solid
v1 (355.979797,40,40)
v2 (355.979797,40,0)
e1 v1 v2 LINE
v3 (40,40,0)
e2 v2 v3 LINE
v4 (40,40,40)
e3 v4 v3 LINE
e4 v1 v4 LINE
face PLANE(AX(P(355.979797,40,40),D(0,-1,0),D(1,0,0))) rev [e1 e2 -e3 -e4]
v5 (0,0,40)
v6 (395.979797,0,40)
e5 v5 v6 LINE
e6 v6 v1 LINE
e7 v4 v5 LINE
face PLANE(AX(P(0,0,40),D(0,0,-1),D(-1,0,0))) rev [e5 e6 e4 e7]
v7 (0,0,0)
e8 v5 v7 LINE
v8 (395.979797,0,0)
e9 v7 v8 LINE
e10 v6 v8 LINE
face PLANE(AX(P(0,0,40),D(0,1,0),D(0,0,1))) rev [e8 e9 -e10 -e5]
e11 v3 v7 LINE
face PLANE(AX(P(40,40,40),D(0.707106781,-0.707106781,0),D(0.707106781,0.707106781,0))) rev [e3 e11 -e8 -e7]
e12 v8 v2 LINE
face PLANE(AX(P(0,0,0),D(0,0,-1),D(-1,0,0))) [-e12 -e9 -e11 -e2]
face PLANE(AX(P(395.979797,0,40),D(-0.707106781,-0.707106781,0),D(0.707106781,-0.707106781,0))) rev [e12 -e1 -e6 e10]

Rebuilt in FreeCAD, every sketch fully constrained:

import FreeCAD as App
import Part
import Sketcher
from FreeCAD import Vector
Q = App.Units.Quantity


def add_polygon(sketch, points):
    """Adds a closed chain of lines whose ends are joined by coincident constraints."""
    first, n = sketch.GeometryCount, len(points)
    for a, b in zip(points, points[1:] + points[:1]):
        sketch.addGeometry(Part.LineSegment(App.Vector(*a, 0), App.Vector(*b, 0)), False)
    for i in range(n):
        sketch.addConstraint(Sketcher.Constraint("Coincident", first + i, 2, first + (i + 1) % n, 1))

doc = App.newDocument("Part")
params = doc.addObject("Spreadsheet::Sheet", "Params")
for row, (alias, value) in enumerate([
    ("pad1_length", "40 mm"),
], start=1):
    params.set(f"A{row}", alias)
    params.set(f"B{row}", "=" + value)
    params.setAlias(f"B{row}", alias)

body = doc.addObject("PartDesign::Body", "Body")

# Sketch on XY plane
sketch1 = body.newObject("Sketcher::SketchObject", "Sketch")
sketch1.AttachmentSupport = (doc.getObject("XY_Plane"), [""])
sketch1.MapMode = "FlatFace"
add_polygon(sketch1, [(0, 0), (396, 0), (356, 40), (40, 40)])  # lines 0-3
sketch1.addConstraint([
    Sketcher.Constraint("Horizontal", 0),
    Sketcher.Constraint("Horizontal", 2),
    Sketcher.Constraint("Coincident", 3, 2, -1, 1),
    Sketcher.Constraint("Perpendicular", 1, 3),
    Sketcher.Constraint("Equal", 1, 3),
    Sketcher.Constraint("DistanceY", -1, 1, 1, 2, Q("40 mm")),
    Sketcher.Constraint("DistanceX", 0, 1, 0, 2, Q("395.979797 mm")),
])
pad1 = body.newObject("PartDesign::Pad", "Pad")
pad1.Profile = sketch1
pad1.setExpression("Length", "Params.pad1_length")

doc.recompute()
